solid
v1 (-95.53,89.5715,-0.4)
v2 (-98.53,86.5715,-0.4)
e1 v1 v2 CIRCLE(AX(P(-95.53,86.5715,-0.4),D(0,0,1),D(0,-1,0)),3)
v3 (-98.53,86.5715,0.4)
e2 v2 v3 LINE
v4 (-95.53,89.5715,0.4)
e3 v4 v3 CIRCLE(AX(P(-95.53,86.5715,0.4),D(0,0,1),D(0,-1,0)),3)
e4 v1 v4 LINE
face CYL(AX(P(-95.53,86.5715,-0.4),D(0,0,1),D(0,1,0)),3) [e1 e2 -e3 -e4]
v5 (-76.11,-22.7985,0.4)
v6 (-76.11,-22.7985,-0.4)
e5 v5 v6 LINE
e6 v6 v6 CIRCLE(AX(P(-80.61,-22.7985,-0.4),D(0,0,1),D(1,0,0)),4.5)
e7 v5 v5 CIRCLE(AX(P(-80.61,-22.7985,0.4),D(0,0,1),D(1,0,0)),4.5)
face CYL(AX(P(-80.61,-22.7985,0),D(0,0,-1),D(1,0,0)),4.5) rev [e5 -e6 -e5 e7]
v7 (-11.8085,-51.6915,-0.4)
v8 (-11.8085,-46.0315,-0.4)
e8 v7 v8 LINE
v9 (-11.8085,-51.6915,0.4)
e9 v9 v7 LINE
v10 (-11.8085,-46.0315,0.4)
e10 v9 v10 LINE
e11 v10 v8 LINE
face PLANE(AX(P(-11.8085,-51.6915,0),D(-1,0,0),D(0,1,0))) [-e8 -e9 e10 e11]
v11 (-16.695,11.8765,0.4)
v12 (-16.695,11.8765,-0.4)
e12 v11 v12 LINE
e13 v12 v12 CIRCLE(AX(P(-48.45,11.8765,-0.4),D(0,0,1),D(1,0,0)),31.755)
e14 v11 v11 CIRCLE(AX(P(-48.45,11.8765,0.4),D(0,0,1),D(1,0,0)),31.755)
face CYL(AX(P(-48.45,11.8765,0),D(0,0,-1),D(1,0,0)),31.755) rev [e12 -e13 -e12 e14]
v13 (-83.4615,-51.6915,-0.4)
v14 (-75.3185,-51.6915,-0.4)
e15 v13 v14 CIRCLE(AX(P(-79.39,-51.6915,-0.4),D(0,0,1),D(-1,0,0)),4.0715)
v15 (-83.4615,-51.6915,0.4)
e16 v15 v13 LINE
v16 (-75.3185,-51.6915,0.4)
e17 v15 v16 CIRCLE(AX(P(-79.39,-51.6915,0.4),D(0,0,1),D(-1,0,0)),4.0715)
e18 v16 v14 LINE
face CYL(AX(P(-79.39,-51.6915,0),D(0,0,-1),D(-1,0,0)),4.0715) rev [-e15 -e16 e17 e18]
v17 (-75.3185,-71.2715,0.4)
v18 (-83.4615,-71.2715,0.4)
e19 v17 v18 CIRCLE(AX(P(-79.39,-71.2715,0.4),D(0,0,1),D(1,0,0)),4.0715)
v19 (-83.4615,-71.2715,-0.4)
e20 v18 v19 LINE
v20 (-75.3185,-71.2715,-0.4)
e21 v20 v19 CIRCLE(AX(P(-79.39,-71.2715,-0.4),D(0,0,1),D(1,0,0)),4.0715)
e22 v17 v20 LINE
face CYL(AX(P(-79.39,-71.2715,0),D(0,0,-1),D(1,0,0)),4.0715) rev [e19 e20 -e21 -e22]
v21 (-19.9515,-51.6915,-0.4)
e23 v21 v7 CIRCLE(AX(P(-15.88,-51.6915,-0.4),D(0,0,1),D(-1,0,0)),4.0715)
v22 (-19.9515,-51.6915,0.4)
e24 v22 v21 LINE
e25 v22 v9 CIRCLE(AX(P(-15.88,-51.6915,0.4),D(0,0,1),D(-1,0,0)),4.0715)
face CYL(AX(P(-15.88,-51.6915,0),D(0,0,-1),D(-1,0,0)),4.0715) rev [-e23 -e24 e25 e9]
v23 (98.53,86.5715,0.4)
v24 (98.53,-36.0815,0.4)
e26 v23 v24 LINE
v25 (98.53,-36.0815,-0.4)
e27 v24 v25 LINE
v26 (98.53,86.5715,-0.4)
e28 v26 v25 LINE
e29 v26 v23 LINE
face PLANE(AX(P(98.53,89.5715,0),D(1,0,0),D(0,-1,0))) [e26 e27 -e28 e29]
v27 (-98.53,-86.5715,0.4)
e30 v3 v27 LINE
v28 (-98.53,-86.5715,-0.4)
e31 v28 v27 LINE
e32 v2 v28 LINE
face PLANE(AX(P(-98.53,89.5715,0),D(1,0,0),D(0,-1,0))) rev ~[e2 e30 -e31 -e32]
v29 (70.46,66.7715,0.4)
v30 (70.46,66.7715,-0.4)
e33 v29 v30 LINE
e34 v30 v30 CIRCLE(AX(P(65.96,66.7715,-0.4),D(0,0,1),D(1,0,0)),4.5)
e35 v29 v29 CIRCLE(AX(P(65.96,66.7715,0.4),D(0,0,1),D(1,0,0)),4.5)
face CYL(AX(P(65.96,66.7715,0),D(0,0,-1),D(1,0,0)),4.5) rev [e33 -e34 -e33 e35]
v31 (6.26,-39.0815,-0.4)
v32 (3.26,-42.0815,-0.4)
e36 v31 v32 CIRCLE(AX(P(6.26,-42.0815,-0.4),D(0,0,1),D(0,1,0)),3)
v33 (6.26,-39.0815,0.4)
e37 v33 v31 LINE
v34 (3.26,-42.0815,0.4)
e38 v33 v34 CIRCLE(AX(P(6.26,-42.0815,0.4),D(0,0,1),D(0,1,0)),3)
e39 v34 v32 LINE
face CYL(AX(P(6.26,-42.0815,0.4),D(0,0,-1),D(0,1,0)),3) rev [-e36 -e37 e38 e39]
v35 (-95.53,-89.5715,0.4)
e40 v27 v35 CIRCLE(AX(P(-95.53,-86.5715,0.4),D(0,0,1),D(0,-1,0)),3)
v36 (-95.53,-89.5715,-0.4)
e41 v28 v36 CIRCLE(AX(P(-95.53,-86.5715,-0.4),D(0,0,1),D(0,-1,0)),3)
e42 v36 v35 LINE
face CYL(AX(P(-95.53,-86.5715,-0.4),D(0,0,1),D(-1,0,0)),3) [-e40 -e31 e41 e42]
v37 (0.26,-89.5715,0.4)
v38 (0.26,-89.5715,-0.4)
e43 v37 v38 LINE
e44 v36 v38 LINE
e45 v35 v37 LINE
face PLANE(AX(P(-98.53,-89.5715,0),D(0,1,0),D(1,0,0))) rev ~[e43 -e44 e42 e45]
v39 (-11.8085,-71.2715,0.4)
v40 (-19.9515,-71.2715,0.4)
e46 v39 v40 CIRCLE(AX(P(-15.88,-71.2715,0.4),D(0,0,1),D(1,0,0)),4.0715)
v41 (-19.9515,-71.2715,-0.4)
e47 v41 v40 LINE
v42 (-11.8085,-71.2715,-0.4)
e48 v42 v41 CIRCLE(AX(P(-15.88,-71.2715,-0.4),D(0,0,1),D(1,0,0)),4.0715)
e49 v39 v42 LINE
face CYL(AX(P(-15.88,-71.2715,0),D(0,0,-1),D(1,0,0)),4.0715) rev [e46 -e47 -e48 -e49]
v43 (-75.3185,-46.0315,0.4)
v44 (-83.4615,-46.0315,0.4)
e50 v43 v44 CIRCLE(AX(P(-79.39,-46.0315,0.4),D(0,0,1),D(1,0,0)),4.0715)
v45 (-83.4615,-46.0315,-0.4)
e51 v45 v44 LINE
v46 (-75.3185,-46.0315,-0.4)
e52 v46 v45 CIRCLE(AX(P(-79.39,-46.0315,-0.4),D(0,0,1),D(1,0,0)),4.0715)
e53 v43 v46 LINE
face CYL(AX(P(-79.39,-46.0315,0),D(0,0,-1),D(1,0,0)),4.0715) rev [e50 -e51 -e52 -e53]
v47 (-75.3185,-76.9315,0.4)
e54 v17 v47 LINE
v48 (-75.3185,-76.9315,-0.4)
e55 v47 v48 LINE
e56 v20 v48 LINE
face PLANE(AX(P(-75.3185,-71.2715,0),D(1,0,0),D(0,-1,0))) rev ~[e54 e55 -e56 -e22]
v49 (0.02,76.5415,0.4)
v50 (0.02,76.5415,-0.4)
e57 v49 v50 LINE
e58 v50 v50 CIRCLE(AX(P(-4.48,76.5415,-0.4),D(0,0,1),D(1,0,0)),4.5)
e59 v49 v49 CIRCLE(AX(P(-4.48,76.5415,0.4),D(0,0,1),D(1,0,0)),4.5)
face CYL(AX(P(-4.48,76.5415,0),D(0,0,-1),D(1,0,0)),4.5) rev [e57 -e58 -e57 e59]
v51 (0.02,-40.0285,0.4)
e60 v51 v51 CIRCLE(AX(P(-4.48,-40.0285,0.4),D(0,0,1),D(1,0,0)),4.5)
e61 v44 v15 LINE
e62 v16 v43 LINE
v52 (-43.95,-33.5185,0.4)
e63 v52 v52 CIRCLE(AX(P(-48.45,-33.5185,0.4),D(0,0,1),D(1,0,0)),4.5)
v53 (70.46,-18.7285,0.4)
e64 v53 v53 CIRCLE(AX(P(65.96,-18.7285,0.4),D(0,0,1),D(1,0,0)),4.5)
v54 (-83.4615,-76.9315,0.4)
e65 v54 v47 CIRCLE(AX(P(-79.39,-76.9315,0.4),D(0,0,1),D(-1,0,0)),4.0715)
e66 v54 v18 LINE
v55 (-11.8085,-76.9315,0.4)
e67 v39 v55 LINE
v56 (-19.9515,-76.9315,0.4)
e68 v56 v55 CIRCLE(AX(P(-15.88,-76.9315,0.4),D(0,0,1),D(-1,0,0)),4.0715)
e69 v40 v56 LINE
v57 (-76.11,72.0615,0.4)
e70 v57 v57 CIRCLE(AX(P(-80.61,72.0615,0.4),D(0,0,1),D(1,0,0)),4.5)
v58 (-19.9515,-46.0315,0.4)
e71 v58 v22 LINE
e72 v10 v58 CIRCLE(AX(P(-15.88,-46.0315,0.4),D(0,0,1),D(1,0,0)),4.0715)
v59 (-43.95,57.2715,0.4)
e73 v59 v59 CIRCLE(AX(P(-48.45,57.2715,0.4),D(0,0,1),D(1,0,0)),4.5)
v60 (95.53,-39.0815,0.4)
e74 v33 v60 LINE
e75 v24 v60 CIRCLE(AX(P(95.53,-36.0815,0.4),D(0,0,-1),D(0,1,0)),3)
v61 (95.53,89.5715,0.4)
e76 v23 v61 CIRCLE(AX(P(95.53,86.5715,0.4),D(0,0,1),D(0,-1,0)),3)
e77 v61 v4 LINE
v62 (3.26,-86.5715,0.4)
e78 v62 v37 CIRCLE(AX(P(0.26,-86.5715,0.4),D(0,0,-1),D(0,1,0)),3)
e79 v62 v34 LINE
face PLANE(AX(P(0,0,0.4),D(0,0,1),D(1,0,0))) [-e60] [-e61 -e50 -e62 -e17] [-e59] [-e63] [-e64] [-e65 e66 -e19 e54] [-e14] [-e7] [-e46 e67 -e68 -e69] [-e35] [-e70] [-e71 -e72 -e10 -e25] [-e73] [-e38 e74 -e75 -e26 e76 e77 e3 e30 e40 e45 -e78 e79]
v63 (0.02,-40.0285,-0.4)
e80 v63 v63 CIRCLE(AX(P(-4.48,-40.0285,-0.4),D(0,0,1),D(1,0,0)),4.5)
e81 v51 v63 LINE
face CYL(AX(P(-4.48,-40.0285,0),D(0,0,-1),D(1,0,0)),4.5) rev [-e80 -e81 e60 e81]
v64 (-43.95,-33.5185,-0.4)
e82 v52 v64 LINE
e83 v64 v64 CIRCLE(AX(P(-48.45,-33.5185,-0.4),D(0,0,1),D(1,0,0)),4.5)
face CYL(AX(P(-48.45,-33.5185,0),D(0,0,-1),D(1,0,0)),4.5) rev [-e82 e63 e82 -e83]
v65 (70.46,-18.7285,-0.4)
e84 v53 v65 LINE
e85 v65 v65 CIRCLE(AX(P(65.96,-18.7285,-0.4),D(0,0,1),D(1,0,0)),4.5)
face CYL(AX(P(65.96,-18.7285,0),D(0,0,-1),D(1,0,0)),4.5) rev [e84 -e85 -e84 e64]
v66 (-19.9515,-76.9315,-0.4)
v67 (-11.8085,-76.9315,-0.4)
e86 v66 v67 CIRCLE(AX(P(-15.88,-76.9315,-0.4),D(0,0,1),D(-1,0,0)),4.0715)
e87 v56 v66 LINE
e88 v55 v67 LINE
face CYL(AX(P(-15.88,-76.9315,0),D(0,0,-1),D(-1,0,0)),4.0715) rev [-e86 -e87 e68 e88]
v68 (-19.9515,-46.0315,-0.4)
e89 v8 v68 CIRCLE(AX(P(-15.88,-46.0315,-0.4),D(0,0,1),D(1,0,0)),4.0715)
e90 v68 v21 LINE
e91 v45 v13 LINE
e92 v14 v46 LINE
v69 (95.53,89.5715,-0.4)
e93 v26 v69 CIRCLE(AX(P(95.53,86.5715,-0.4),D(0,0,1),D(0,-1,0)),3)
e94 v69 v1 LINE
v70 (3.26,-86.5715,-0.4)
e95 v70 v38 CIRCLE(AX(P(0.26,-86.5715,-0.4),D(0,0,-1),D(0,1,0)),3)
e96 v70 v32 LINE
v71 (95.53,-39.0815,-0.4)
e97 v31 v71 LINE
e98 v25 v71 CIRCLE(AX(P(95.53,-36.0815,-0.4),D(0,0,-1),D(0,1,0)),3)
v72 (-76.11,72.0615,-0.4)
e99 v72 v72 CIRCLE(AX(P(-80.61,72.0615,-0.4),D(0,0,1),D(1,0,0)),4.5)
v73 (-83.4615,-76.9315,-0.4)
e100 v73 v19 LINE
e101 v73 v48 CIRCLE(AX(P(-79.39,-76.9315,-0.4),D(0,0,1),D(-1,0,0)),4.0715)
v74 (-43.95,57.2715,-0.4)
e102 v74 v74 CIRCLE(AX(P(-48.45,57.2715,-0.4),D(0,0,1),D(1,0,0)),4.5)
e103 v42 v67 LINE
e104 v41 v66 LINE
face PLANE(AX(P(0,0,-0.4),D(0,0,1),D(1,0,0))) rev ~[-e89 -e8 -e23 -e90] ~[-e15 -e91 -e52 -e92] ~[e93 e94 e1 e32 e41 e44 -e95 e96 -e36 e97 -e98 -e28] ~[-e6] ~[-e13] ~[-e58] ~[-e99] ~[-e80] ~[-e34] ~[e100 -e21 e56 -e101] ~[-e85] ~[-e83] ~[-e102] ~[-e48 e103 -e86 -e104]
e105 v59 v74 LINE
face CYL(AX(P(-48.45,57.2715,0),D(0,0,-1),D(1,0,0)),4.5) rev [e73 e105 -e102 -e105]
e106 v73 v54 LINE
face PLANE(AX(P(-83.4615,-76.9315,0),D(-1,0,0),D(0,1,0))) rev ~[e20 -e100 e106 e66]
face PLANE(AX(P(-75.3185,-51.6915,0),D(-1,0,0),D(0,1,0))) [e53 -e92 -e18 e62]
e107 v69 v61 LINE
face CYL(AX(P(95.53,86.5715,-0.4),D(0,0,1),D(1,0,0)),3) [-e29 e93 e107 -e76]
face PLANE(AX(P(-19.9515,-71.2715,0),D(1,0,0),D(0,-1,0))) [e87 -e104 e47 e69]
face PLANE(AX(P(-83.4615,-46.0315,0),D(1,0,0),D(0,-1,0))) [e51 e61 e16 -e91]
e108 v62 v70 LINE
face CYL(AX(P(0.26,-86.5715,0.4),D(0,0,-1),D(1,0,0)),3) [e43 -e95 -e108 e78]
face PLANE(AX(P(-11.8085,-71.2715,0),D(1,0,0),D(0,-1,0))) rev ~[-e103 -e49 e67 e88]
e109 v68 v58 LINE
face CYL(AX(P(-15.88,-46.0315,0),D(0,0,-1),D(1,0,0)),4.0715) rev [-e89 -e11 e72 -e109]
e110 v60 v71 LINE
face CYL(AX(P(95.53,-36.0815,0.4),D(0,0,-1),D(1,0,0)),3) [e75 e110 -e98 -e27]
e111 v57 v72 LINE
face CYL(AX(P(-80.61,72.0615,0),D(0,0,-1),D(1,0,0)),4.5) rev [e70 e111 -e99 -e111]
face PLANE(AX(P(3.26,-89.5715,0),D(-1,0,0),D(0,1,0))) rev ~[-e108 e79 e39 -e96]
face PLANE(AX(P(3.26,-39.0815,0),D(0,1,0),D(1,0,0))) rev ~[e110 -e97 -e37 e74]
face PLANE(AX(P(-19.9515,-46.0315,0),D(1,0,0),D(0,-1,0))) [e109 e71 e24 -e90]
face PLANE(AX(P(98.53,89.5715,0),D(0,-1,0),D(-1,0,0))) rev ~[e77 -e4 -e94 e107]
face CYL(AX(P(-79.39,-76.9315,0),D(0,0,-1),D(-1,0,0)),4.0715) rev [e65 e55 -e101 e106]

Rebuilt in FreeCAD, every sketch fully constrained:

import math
import FreeCAD as App
import Part
import Sketcher
from FreeCAD import Vector


def edges_at(feature, points):
    """Names of the edges that pass closest to the given points."""
    edges = feature.Shape.Edges
    near = lambda p: min(range(len(edges)), key=lambda i: edges[i].distToShape(Part.Vertex(*p))[0])
    return sorted({f"Edge{near(p) + 1}" for p in points})

doc = App.newDocument("Part")
body = doc.addObject("PartDesign::Body", "Body")

# Sketch on XY plane
sketch1 = body.newObject("Sketcher::SketchObject", "Sketch")
sketch1.AttachmentSupport = (doc.getObject("XY_Plane"), [""])
sketch1.MapMode = "FlatFace"
sketch1.addGeometry([
    Part.LineSegment(Vector(98.5, -39.1, 0), Vector(98.5, 89.6, 0)),  # 0
    Part.LineSegment(Vector(98.5, 89.6, 0), Vector(-98.5, 89.6, 0)),  # 1
    Part.LineSegment(Vector(-98.5, 89.6, 0), Vector(-98.5, -89.6, 0)),  # 2
    Part.LineSegment(Vector(-98.5, -89.6, 0), Vector(3.3, -89.6, 0)),  # 3
    Part.LineSegment(Vector(3.3, -89.6, 0), Vector(3.3, -39.1, 0)),  # 4
    Part.LineSegment(Vector(3.3, -39.1, 0), Vector(98.5, -39.1, 0)),  # 5
    Part.ArcOfCircle(Part.Circle(Vector(-79.4, -76.9, 0), Vector(0, 0, 1), 4.1), math.radians(180), math.radians(360)),  # 6
    Part.LineSegment(Vector(-83.5, -76.9, 0), Vector(-83.5, -71.3, 0)),  # 7
    Part.ArcOfCircle(Part.Circle(Vector(-79.4, -71.3, 0), Vector(0, 0, 1), 4.1), math.radians(0), math.radians(180)),  # 8
    Part.LineSegment(Vector(-75.3, -71.3, 0), Vector(-75.3, -76.9, 0)),  # 9
    Part.LineSegment(Vector(-83.5, -51.7, 0), Vector(-83.5, -46, 0)),  # 10
    Part.ArcOfCircle(Part.Circle(Vector(-79.4, -46, 0), Vector(0, 0, 1), 4.1), math.radians(0), math.radians(180)),  # 11
    Part.LineSegment(Vector(-75.3, -46, 0), Vector(-75.3, -51.7, 0)),  # 12
    Part.ArcOfCircle(Part.Circle(Vector(-79.4, -51.7, 0), Vector(0, 0, 1), 4.1), math.radians(180), math.radians(360)),  # 13
    Part.LineSegment(Vector(-20, -76.9, 0), Vector(-20, -71.3, 0)),  # 14
    Part.ArcOfCircle(Part.Circle(Vector(-15.9, -71.3, 0), Vector(0, 0, 1), 4.1), math.radians(0), math.radians(180)),  # 15
    Part.LineSegment(Vector(-11.8, -71.3, 0), Vector(-11.8, -76.9, 0)),  # 16
    Part.ArcOfCircle(Part.Circle(Vector(-15.9, -76.9, 0), Vector(0, 0, 1), 4.1), math.radians(180), math.radians(360)),  # 17
    Part.LineSegment(Vector(-20, -51.7, 0), Vector(-20, -46, 0)),  # 18
    Part.ArcOfCircle(Part.Circle(Vector(-15.9, -46, 0), Vector(0, 0, 1), 4.1), math.radians(0), math.radians(180)),  # 19
    Part.LineSegment(Vector(-11.8, -46, 0), Vector(-11.8, -51.7, 0)),  # 20
    Part.ArcOfCircle(Part.Circle(Vector(-15.9, -51.7, 0), Vector(0, 0, 1), 4.1), math.radians(180), math.radians(360)),  # 21
    Part.Circle(Vector(-80.6, -22.8, 0), Vector(0, 0, 1), 4.5),  # 22
    Part.Circle(Vector(-48.5, -33.5, 0), Vector(0, 0, 1), 4.5),  # 23
    Part.Circle(Vector(-4.5, -40, 0), Vector(0, 0, 1), 4.5),  # 24
    Part.Circle(Vector(66, -18.7, 0), Vector(0, 0, 1), 4.5),  # 25
    Part.Circle(Vector(-48.5, 11.9, 0), Vector(0, 0, 1), 31.8),  # 26
    Part.Circle(Vector(-80.6, 72.1, 0), Vector(0, 0, 1), 4.5),  # 27
    Part.Circle(Vector(-48.5, 57.3, 0), Vector(0, 0, 1), 4.5),  # 28
    Part.Circle(Vector(-4.5, 76.5, 0), Vector(0, 0, 1), 4.5),  # 29
    Part.Circle(Vector(66, 66.8, 0), Vector(0, 0, 1), 4.5),  # 30
], False)
sketch1.addConstraint([
    Sketcher.Constraint("Coincident", 0, 2, 1, 1),
    Sketcher.Constraint("Coincident", 1, 2, 2, 1),
    Sketcher.Constraint("Coincident", 2, 2, 3, 1),
    Sketcher.Constraint("Coincident", 3, 2, 4, 1),
    Sketcher.Constraint("Coincident", 4, 2, 5, 1),
    Sketcher.Constraint("Coincident", 5, 2, 0, 1),
    Sketcher.Constraint("Tangent", 6, 1, 7, 1),
    Sketcher.Constraint("Tangent", 7, 2, 8, 2),
    Sketcher.Constraint("Tangent", 8, 1, 9, 1),
    Sketcher.Constraint("Tangent", 9, 2, 6, 2),
    Sketcher.Constraint("Tangent", 10, 2, 11, 2),
    Sketcher.Constraint("Tangent", 11, 1, 12, 1),
    Sketcher.Constraint("Tangent", 12, 2, 13, 2),
    Sketcher.Constraint("Tangent", 13, 1, 10, 1),
    Sketcher.Constraint("Tangent", 14, 2, 15, 2),
    Sketcher.Constraint("Tangent", 15, 1, 16, 1),
    Sketcher.Constraint("Tangent", 16, 2, 17, 2),
    Sketcher.Constraint("Tangent", 17, 1, 14, 1),
    Sketcher.Constraint("Tangent", 18, 2, 19, 2),
    Sketcher.Constraint("Tangent", 19, 1, 20, 1),
    Sketcher.Constraint("Tangent", 20, 2, 21, 2),
    Sketcher.Constraint("Tangent", 21, 1, 18, 1),
    Sketcher.Constraint("Vertical", 0),
    Sketcher.Constraint("Horizontal", 1),
    Sketcher.Constraint("Vertical", 2),
    Sketcher.Constraint("Horizontal", 3),
    Sketcher.Constraint("Vertical", 4),
    Sketcher.Constraint("Horizontal", 5),
    Sketcher.Constraint("Vertical", 7),
    Sketcher.Constraint("Vertical", 9),
    Sketcher.Constraint("Vertical", 10),
    Sketcher.Constraint("Vertical", 12),
    Sketcher.Constraint("Vertical", 14),
    Sketcher.Constraint("Vertical", 16),
    Sketcher.Constraint("Vertical", 18),
    Sketcher.Constraint("Vertical", 20),
    Sketcher.Constraint("Equal", 8, 11),
    Sketcher.Constraint("Equal", 13, 15),
    Sketcher.Constraint("Equal", 17, 19),
    Sketcher.Constraint("Equal", 22, 23),
    Sketcher.Constraint("Equal", 23, 24),
    Sketcher.Constraint("Equal", 24, 25),
    Sketcher.Constraint("Equal", 25, 27),
    Sketcher.Constraint("Equal", 27, 28),
    Sketcher.Constraint("Equal", 28, 29),
    Sketcher.Constraint("Equal", 29, 30),
    Sketcher.Constraint("Symmetric", 0, 2, 2, 2, -1, 1),
    Sketcher.Constraint("Horizontal", 8, 3, 15, 3),
    Sketcher.Constraint("Horizontal", 6, 3, 17, 3),
    Sketcher.Constraint("Horizontal", 11, 3, 19, 3),
    Sketcher.Constraint("Horizontal", 13, 3, 21, 3),
    Sketcher.Constraint("Vertical", 8, 3, 11, 3),
    Sketcher.Constraint("Vertical", 17, 3, 19, 3),
    Sketcher.Constraint("Vertical", 23, 3, 26, 3),
    Sketcher.Constraint("Vertical", 22, 3, 27, 3),
    Sketcher.Constraint("Vertical", 26, 3, 28, 3),
    Sketcher.Constraint("Vertical", 24, 3, 29, 3),
    Sketcher.Constraint("Vertical", 25, 3, 30, 3),
    Sketcher.Constraint("Equal", 9, 10),
    Sketcher.Constraint("Diameter", 22, 9.0),
    Sketcher.Constraint("Diameter", 26, 63.51),
    Sketcher.Constraint("DistanceX", 8, 3, 15, 3, 63.51),
    Sketcher.Constraint("DistanceX", 1, 2, 1, 1, 197.06),
    Sketcher.Constraint("DistanceX", 3, 1, 3, 2, 101.79),
    Sketcher.Constraint("DistanceY", 4, 1, 4, 2, 50.49),
    Sketcher.Constraint("DistanceY", 7, 1, 7, 2, 5.66),
    Sketcher.Constraint("Radius", 6, 4.0715),
    Sketcher.Constraint("DistanceY", 6, 3, 11, 3, 30.9),
    Sketcher.Constraint("DistanceX", 19, 3, 24, 3, 11.4),
    Sketcher.Constraint("DistanceY", 24, 3, 25, 3, 21.3),
    Sketcher.Constraint("DistanceY", 24, 3, 28, 3, 97.3),
    Sketcher.Constraint("DistanceY", 25, 3, 30, 3, 85.5),
    Sketcher.Constraint("DistanceY", 30, 3, 0, 2, 22.8),
    Sketcher.Constraint("DistanceY", 2, 2, 8, 3, 18.3),
    Sketcher.Constraint("DistanceY", 0, 1, 0, 2, 128.653),
    Sketcher.Constraint("DistanceX", 6, 3, -1, 1, 79.39),
    Sketcher.Constraint("DistanceX", 22, 3, -1, 1, 80.61),
    Sketcher.Constraint("DistanceX", 23, 3, -1, 1, 48.45),
    Sketcher.Constraint("DistanceX", -1, 1, 25, 3, 65.96),
    Sketcher.Constraint("DistanceY", 23, 3, 22, 3, 10.72),
    Sketcher.Constraint("DistanceY", 24, 3, 23, 3, 6.51),
    Sketcher.Constraint("DistanceY", 22, 3, 27, 3, 94.86),
    Sketcher.Constraint("DistanceY", 28, 3, 29, 3, 19.27),
    Sketcher.Constraint("DistanceY", 23, 3, 26, 3, 45.395),
])
pad1 = body.newObject("PartDesign::Pad", "Pad")
pad1.Profile = sketch1
pad1.Length = 0.8
pad1.Midplane = True
doc.recompute()

fillet = body.newObject("PartDesign::Fillet", "Fillet")
fillet.Base = (pad1, edges_at(pad1, [
    (98.53, 89.572, 0),
    (98.53, -39.081, 0),
    (3.26, -89.572, 0),
    (3.26, -39.081, 0),
    (-98.53, -89.572, 0),
    (-98.53, 89.572, 0),
]))
fillet.Radius = 3

doc.recompute()
